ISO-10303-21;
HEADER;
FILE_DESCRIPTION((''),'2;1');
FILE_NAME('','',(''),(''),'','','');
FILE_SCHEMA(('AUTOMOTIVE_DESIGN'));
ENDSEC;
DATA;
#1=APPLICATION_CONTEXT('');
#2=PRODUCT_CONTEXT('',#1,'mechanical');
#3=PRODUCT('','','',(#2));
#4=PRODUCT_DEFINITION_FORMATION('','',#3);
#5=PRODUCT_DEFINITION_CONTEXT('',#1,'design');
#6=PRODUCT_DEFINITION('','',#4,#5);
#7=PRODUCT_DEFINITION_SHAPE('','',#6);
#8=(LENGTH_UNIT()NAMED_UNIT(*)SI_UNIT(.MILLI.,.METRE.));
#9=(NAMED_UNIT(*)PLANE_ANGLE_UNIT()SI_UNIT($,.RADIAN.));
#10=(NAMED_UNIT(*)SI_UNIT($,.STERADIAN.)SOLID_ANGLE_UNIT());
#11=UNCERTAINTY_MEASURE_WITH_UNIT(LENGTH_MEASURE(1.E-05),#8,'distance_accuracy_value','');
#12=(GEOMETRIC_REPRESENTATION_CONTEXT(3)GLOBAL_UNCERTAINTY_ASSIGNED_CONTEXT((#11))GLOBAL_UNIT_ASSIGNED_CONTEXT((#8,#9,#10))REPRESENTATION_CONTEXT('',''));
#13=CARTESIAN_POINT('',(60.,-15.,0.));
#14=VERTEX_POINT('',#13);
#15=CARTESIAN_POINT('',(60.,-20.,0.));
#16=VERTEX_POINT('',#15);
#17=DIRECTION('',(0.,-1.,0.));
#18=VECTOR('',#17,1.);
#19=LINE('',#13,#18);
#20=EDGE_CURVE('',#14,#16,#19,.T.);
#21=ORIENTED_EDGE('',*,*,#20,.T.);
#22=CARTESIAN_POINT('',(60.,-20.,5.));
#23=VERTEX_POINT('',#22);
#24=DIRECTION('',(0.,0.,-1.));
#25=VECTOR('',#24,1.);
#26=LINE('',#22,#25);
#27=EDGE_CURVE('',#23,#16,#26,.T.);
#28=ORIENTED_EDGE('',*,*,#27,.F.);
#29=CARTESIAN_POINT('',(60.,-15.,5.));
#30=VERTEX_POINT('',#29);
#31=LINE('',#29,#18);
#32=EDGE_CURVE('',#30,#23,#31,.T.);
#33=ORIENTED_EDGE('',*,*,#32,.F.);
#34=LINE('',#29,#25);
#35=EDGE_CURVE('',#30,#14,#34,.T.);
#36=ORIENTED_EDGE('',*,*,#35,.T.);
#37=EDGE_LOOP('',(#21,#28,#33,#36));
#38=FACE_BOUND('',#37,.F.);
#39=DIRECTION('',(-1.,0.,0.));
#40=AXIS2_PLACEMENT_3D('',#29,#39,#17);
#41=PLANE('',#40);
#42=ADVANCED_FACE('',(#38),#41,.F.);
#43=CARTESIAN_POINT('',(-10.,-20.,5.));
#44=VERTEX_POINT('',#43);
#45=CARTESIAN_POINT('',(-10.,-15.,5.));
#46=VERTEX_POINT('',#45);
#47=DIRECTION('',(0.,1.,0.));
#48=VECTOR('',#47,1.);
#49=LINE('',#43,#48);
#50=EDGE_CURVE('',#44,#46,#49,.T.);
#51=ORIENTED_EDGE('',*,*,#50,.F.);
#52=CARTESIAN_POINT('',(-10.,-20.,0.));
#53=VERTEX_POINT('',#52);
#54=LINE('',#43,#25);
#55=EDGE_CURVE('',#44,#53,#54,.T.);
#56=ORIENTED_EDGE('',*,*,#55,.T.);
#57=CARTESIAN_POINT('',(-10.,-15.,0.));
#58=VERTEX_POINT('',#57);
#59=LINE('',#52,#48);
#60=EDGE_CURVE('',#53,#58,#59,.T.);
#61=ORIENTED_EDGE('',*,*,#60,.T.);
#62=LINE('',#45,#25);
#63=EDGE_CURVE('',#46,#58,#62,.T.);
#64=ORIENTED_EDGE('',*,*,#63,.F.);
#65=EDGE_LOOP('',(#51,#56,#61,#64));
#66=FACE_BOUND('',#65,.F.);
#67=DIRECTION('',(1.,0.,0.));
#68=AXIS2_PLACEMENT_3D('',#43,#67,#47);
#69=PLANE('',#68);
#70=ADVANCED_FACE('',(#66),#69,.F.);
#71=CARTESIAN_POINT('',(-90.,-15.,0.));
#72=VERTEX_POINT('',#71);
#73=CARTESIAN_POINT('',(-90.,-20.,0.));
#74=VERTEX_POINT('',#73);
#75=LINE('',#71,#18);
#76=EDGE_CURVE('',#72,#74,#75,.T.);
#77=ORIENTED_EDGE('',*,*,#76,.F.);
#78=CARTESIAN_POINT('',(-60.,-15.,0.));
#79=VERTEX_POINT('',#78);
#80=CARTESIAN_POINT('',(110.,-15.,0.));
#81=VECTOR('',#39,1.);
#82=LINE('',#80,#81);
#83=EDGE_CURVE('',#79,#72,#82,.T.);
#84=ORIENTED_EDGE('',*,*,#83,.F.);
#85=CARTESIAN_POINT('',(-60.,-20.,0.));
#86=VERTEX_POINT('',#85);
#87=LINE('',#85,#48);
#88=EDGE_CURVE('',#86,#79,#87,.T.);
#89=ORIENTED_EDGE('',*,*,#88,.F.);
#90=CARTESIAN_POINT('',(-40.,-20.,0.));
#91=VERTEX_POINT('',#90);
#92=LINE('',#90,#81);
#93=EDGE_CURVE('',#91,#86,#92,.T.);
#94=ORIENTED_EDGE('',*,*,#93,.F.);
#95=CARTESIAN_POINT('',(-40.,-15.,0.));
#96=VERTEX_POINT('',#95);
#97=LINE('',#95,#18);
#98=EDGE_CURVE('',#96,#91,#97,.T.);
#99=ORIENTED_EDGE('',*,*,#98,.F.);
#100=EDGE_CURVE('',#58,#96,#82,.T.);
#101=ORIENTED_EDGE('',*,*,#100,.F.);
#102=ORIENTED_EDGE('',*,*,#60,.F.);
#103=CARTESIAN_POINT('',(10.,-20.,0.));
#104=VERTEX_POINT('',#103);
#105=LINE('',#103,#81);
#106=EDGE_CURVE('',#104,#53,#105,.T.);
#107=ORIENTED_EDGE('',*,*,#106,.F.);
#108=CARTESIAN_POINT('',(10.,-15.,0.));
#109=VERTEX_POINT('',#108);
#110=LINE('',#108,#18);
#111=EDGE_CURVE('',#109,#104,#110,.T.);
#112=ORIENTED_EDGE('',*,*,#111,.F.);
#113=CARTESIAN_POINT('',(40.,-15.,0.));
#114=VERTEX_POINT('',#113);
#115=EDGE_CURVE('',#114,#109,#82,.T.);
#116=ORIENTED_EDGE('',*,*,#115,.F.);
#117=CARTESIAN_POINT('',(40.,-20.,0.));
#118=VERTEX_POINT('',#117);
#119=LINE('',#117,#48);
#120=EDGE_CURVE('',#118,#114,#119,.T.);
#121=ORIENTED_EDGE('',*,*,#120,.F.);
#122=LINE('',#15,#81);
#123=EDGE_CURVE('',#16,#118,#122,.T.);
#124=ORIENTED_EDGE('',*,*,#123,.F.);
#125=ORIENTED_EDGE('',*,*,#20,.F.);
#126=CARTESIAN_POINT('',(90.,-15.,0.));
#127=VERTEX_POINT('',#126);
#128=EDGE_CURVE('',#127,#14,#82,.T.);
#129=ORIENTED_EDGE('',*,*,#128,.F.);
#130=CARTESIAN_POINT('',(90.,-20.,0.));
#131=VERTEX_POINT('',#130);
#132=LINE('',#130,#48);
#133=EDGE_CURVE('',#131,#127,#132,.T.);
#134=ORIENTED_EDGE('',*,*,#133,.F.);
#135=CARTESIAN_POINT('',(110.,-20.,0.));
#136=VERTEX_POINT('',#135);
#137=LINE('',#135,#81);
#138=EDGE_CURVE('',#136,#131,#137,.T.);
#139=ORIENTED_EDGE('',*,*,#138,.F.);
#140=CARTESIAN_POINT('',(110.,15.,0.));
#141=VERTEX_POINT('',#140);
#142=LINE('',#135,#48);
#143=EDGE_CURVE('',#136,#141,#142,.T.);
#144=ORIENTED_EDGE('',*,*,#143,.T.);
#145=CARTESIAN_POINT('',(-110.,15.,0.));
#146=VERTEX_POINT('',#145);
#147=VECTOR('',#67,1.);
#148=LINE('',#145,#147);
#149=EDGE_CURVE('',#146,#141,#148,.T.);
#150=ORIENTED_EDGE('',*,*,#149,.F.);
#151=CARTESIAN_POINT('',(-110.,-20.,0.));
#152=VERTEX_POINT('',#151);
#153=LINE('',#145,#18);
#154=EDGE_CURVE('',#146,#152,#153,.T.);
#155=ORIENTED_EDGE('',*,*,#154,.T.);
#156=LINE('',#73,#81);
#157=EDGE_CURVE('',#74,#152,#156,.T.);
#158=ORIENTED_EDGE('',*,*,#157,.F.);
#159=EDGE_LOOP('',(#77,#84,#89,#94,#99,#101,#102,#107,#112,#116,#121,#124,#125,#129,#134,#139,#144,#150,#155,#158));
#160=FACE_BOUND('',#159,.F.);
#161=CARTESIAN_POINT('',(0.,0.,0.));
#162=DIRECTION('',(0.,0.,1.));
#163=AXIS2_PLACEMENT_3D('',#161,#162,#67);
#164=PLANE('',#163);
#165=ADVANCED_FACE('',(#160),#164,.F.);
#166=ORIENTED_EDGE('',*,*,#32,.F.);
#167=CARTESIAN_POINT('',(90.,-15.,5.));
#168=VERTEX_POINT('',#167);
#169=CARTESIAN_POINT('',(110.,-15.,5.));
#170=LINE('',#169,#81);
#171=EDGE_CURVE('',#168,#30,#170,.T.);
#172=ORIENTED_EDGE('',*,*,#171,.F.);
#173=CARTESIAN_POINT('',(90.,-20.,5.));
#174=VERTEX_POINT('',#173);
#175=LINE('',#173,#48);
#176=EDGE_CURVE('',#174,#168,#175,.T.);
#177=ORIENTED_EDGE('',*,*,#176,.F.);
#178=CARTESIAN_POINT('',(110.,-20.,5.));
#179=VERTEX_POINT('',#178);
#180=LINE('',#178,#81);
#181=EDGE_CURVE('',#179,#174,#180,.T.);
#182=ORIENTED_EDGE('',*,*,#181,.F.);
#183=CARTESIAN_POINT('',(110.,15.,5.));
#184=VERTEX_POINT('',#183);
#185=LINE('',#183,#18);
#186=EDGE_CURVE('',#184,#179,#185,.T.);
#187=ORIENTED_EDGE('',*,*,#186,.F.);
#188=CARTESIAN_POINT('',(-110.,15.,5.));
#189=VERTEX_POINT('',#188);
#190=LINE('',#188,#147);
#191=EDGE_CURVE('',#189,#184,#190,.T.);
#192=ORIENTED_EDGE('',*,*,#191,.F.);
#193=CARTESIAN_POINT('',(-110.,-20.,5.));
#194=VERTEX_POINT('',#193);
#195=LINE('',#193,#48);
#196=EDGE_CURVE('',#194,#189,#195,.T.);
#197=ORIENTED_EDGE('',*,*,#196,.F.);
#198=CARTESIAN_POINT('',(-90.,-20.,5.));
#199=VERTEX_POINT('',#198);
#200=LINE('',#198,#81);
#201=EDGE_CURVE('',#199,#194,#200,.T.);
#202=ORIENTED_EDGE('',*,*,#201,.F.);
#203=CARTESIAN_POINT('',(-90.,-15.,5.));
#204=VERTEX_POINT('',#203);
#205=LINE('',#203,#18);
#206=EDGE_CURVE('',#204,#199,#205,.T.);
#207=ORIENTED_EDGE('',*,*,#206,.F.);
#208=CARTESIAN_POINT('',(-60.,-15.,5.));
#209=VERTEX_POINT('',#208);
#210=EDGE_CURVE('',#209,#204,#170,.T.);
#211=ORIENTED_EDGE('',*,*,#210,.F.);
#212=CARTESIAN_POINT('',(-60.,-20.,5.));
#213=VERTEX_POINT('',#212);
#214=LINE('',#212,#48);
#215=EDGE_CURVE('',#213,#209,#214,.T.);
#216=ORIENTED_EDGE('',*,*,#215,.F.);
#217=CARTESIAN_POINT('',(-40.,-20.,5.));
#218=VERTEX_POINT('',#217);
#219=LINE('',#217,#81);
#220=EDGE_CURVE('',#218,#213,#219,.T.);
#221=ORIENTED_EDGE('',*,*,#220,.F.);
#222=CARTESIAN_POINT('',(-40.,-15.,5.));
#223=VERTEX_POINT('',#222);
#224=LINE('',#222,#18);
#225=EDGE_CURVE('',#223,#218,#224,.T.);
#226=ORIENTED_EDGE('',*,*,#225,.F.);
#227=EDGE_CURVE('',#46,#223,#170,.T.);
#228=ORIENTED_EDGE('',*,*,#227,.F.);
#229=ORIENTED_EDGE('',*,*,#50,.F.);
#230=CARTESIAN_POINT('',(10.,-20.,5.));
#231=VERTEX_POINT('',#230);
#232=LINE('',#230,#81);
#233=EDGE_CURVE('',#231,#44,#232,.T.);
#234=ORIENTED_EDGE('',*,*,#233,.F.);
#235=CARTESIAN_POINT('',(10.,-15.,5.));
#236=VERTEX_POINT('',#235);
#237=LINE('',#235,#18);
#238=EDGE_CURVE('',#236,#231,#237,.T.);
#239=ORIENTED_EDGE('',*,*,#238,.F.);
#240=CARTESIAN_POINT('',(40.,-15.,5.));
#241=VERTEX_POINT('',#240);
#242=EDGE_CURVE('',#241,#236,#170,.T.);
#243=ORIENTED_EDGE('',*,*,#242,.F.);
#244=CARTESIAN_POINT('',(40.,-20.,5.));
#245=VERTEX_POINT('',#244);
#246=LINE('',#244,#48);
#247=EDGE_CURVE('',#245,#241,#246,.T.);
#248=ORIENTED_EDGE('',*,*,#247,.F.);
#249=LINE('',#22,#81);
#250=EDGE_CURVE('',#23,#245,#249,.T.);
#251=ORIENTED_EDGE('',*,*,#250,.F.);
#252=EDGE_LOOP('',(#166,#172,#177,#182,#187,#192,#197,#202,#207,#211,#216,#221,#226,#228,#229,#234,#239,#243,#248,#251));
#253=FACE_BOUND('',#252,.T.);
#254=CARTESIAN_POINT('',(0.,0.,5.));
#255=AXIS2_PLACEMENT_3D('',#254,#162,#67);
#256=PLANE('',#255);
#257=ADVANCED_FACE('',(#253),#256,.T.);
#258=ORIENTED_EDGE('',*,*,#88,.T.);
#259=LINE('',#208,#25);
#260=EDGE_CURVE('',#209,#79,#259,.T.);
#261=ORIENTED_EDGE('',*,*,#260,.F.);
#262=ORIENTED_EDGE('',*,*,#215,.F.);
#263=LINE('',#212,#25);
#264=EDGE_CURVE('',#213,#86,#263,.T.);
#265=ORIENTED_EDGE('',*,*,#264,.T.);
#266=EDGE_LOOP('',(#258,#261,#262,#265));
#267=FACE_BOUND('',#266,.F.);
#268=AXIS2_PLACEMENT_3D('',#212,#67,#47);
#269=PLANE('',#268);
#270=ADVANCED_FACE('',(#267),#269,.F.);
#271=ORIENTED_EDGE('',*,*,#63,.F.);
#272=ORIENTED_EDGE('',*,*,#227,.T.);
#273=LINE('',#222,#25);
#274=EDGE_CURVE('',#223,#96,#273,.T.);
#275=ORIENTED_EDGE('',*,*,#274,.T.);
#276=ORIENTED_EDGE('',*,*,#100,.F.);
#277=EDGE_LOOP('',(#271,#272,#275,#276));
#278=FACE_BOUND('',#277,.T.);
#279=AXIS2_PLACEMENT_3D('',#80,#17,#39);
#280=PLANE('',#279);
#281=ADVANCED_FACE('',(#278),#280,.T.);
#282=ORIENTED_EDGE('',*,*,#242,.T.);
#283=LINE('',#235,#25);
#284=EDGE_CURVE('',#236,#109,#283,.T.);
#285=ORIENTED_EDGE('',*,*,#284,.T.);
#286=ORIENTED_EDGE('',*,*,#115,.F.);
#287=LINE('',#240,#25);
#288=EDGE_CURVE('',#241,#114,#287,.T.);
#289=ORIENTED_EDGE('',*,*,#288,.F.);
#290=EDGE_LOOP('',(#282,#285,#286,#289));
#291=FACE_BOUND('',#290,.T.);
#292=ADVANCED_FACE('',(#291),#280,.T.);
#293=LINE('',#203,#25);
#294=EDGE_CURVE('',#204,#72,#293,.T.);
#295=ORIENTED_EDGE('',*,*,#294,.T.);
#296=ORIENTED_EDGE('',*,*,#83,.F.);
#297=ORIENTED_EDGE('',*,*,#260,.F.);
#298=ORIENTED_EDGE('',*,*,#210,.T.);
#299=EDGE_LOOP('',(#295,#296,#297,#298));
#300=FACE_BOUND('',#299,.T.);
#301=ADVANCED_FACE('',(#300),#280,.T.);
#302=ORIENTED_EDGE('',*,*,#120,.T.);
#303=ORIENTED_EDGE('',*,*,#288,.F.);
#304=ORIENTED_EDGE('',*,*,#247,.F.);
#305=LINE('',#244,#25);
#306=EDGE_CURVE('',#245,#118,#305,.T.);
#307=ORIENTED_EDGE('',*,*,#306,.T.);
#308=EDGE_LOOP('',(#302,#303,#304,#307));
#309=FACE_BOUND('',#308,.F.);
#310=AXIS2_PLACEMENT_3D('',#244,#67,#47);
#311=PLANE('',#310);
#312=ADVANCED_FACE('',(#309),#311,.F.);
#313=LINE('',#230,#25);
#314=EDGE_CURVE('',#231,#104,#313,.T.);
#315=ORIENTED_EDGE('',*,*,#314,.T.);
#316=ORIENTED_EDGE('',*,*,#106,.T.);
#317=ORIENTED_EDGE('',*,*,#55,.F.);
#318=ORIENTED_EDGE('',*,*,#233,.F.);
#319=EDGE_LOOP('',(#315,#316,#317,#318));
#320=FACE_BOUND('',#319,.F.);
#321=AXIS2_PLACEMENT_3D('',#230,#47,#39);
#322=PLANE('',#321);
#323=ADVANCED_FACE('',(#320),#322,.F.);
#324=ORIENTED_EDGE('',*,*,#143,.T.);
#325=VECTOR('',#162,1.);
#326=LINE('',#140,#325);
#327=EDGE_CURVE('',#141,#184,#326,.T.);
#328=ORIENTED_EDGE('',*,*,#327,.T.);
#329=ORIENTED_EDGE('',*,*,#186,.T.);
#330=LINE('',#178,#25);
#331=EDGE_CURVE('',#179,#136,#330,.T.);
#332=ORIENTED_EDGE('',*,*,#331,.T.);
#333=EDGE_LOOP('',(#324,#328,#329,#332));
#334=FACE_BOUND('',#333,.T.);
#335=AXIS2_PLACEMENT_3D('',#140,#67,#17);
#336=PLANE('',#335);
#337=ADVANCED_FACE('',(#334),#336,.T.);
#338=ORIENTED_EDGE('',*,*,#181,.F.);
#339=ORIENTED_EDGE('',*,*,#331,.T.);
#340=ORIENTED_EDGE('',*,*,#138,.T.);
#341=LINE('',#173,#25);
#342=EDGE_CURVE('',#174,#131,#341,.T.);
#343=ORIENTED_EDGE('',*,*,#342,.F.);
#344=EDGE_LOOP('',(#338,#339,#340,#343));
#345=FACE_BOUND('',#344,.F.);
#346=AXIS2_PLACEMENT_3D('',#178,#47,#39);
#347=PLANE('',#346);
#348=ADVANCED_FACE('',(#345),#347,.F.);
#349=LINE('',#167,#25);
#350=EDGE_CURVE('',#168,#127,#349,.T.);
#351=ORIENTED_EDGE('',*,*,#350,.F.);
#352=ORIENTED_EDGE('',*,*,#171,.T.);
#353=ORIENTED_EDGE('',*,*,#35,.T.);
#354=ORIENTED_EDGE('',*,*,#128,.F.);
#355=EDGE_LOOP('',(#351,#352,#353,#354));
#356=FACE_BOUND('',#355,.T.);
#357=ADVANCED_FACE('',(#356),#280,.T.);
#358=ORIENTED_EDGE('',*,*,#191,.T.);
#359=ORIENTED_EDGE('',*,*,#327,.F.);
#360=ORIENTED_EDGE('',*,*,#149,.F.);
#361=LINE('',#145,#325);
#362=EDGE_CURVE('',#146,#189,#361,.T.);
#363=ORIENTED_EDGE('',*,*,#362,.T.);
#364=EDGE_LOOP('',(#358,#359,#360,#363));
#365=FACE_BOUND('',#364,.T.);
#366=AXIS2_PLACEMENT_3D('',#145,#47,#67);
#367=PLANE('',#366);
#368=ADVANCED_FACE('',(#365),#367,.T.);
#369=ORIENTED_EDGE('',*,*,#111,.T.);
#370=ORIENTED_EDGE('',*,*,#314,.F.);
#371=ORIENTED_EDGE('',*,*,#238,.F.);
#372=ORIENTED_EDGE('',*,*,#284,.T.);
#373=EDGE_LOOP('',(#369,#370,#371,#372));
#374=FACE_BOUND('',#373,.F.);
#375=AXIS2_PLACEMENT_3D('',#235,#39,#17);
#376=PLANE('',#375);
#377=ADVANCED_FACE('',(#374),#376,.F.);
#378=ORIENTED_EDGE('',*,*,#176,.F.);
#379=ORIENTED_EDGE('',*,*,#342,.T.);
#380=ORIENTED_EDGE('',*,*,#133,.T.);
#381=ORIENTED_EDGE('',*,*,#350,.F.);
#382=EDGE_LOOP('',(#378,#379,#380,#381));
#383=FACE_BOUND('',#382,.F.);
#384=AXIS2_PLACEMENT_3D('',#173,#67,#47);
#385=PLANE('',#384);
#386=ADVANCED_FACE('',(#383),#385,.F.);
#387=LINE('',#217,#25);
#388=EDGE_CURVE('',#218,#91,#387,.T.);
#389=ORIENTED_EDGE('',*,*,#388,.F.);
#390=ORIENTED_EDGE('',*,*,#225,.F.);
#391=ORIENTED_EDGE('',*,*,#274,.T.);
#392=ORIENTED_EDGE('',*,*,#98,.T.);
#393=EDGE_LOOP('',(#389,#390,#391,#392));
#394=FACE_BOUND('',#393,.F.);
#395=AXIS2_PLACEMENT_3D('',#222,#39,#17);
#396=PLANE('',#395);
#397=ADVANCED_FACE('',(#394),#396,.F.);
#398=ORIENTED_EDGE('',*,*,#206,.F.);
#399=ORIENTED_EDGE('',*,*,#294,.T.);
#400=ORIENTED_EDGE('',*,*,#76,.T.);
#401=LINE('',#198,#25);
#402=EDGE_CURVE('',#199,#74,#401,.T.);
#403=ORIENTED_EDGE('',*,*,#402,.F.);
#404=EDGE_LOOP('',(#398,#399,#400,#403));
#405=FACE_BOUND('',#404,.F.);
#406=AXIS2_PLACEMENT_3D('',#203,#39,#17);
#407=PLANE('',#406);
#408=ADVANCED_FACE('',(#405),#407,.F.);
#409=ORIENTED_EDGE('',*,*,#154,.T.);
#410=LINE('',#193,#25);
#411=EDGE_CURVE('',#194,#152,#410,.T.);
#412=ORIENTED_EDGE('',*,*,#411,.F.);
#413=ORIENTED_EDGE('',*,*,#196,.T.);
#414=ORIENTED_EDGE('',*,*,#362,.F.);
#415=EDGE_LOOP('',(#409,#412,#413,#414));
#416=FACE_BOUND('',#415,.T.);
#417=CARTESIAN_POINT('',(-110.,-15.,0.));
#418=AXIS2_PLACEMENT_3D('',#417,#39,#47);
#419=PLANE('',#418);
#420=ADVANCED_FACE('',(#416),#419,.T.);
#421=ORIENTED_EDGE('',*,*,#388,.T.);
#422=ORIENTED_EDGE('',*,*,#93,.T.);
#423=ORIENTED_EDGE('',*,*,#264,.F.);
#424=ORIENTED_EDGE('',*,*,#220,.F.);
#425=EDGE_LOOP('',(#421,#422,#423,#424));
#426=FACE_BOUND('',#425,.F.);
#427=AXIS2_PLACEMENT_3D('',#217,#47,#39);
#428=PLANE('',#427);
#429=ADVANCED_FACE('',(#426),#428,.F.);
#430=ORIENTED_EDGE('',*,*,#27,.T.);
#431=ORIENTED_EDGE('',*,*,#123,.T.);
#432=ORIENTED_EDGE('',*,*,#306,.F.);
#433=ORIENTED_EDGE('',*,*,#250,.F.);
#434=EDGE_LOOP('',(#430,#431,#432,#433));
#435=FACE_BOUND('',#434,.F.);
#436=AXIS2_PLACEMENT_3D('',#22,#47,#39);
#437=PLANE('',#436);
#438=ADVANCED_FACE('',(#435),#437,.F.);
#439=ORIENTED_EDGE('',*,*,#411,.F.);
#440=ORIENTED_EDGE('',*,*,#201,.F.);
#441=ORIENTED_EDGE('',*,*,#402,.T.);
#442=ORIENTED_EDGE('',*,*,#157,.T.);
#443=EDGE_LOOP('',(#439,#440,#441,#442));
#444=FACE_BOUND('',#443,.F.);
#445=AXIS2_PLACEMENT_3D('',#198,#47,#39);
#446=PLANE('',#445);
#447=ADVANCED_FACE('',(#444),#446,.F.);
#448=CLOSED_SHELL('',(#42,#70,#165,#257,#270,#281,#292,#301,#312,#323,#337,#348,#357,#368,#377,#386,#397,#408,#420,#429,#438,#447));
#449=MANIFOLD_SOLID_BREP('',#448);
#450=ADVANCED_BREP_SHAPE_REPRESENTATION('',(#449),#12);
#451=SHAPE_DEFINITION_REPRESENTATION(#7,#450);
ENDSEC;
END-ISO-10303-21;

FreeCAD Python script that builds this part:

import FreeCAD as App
import Part
import Sketcher

V = App.Vector


def add_polygon(sketch, points):
    """Adds a closed chain of lines whose ends are joined by coincident constraints."""
    first, n = sketch.GeometryCount, len(points)
    for a, b in zip(points, points[1:] + points[:1]):
        sketch.addGeometry(Part.LineSegment(App.Vector(*a, 0), App.Vector(*b, 0)), False)
    for i in range(n):
        sketch.addConstraint(Sketcher.Constraint("Coincident", first + i, 2, first + (i + 1) % n, 1))

doc = App.newDocument("Part")
body = doc.addObject("PartDesign::Body", "Body")

sketch1 = body.newObject("Sketcher::SketchObject", "Sketch")
sketch1.AttachmentSupport = (doc.getObject("XY_Plane"), [""])
sketch1.MapMode = "FlatFace"
add_polygon(sketch1, [(110, 15), (-110, 15), (-110, -15), (110, -15)])
sketch1.addConstraint([
    Sketcher.Constraint("Horizontal", 0),
    Sketcher.Constraint("Vertical", 1),
    Sketcher.Constraint("Horizontal", 2),
    Sketcher.Constraint("Vertical", 3),
    Sketcher.Constraint("Symmetric", 0, 2, 2, 2, -1, 1),
    Sketcher.Constraint("DistanceX", 0, 2, 0, 1, 220.0),
    Sketcher.Constraint("DistanceY", 1, 2, 1, 1, 30.0),
])
pad1 = body.newObject("PartDesign::Pad", "Pad")
pad1.Profile = sketch1
pad1.Length = 5

sketch2 = body.newObject("Sketcher::SketchObject", "Sketch001")
sketch2.AttachmentSupport = (doc.getObject("XY_Plane"), [""])
sketch2.MapMode = "FlatFace"
sketch2.AttachmentOffset = App.Placement(V(0, 0, 5), App.Rotation())
add_polygon(sketch2, [(110, -15), (90, -15), (90, -20), (110, -20)])
add_polygon(sketch2, [(60, -15), (40, -15), (40, -20), (60, -20)])
add_polygon(sketch2, [(10, -15), (-10, -15), (-10, -20), (10, -20)])
add_polygon(sketch2, [(-40, -15), (-60, -15), (-60, -20), (-40, -20)])
add_polygon(sketch2, [(-90, -15), (-110, -15), (-110, -20), (-90, -20)])
sketch2.addConstraint([
    Sketcher.Constraint("Horizontal", 0),
    Sketcher.Constraint("Vertical", 1),
    Sketcher.Constraint("Horizontal", 2),
    Sketcher.Constraint("Vertical", 3),
    Sketcher.Constraint("Horizontal", 4),
    Sketcher.Constraint("Vertical", 5),
    Sketcher.Constraint("Horizontal", 6),
    Sketcher.Constraint("Vertical", 7),
    Sketcher.Constraint("Horizontal", 8),
    Sketcher.Constraint("Vertical", 9),
    Sketcher.Constraint("Horizontal", 10),
    Sketcher.Constraint("Vertical", 11),
    Sketcher.Constraint("Horizontal", 12),
    Sketcher.Constraint("Vertical", 13),
    Sketcher.Constraint("Horizontal", 14),
    Sketcher.Constraint("Vertical", 15),
    Sketcher.Constraint("Horizontal", 16),
    Sketcher.Constraint("Vertical", 17),
    Sketcher.Constraint("Horizontal", 18),
    Sketcher.Constraint("Vertical", 19),
    Sketcher.Constraint("Symmetric", 7, 2, 12, 2, -2),
    Sketcher.Constraint("Symmetric", 5, 2, 14, 2, -2),
    Sketcher.Constraint("Symmetric", 3, 2, 16, 2, -2),
    Sketcher.Constraint("Symmetric", 1, 2, 18, 2, -2),
    Sketcher.Constraint("Horizontal", 3, 2, 4, 2),
    Sketcher.Constraint("Horizontal", 2, 2, 5, 2),
    Sketcher.Constraint("Horizontal", 7, 2, 8, 2),
    Sketcher.Constraint("Horizontal", 6, 2, 9, 2),
    Sketcher.Constraint("Equal", 2, 4),
    Sketcher.Constraint("Equal", 6, 8),
    Sketcher.Constraint("DistanceX", 0, 2, 0, 1, 20.0),
    Sketcher.Constraint("DistanceY", 1, 2, 1, 1, 5.0),
    Sketcher.Constraint("DistanceY", 1, 2, -1, 1, 20.0),
    Sketcher.Constraint("DistanceX", 4, 2, 0, 2, 50.0),
    Sketcher.Constraint("DistanceX", 8, 2, 4, 2, 50.0),
    Sketcher.Constraint("DistanceX", 12, 2, 8, 2, 50.0),
])
pad2 = body.newObject("PartDesign::Pad", "Pad001")
pad2.Profile = sketch2
pad2.Length = 5
pad2.Reversed = True

doc.recompute()
